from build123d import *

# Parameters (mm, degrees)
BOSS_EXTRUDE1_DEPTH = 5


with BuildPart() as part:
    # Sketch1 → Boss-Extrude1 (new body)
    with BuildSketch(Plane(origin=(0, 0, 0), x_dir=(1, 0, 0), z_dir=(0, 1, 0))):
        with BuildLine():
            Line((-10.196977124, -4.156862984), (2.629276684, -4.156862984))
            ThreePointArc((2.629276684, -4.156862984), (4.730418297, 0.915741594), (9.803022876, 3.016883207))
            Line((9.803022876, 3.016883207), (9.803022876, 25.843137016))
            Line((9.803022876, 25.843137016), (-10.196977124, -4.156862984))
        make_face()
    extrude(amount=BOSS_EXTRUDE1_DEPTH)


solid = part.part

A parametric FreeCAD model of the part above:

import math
import FreeCAD as App
import Part
import Sketcher

V = App.Vector
Q = App.Units.Quantity

doc = App.newDocument("Part")
params = doc.addObject("Spreadsheet::Sheet", "Params")
for row, (alias, value) in enumerate([
    ("pad1_length", "5 mm"),
], start=1):
    params.set(f"A{row}", alias)
    params.set(f"B{row}", "=" + value)
    params.setAlias(f"B{row}", alias)

body = doc.addObject("PartDesign::Body", "Body")

sketch1 = body.newObject("Sketcher::SketchObject", "Sketch")
sketch1.AttachmentSupport = (doc.getObject("XZ_Plane"), [""])
sketch1.MapMode = "FlatFace"
sketch1.addGeometry([
    Part.LineSegment(V(-10.196977, 4.156863, 0), V(2.629277, 4.156863, 0)),
    Part.ArcOfCircle(Part.Circle(V(9.803023, 4.156863, 0), V(0, 0, 1), 7.173746), math.radians(-180), math.radians(-90)),
    Part.LineSegment(V(9.803023, -3.016883, 0), V(9.803023, -25.843137, 0)),
    Part.LineSegment(V(9.803023, -25.843137, 0), V(-10.196977, 4.156863, 0)),
], False)
sketch1.addConstraint([
    Sketcher.Constraint("Coincident", 0, 2, 1, 1),
    Sketcher.Constraint("Coincident", 1, 2, 2, 1),
    Sketcher.Constraint("Coincident", 2, 2, 3, 1),
    Sketcher.Constraint("Coincident", 3, 2, 0, 1),
    Sketcher.Constraint("Horizontal", 0),
    Sketcher.Constraint("Vertical", 2),
    Sketcher.Constraint("Horizontal", 1, 3, 0, 2),
    Sketcher.Constraint("DistanceY", 2, 2, 1, 3, Q("30 mm")),
    Sketcher.Constraint("DistanceX", 3, 2, 1, 3, Q("20 mm")),
    Sketcher.Constraint("DistanceX", 3, 2, 1, 2, Q("20 mm")),
    Sketcher.Constraint("Radius", 1, Q("7.173746 mm")),
    Sketcher.Constraint("DistanceX", -1, 1, 1, 3, Q("9.803023 mm")),
    Sketcher.Constraint("DistanceY", -1, 1, 1, 3, Q("4.156863 mm")),
])
pad1 = body.newObject("PartDesign::Pad", "Pad")
pad1.Profile = sketch1
pad1.setExpression("Length", "Params.pad1_length")
pad1.Reversed = True

doc.recompute()
